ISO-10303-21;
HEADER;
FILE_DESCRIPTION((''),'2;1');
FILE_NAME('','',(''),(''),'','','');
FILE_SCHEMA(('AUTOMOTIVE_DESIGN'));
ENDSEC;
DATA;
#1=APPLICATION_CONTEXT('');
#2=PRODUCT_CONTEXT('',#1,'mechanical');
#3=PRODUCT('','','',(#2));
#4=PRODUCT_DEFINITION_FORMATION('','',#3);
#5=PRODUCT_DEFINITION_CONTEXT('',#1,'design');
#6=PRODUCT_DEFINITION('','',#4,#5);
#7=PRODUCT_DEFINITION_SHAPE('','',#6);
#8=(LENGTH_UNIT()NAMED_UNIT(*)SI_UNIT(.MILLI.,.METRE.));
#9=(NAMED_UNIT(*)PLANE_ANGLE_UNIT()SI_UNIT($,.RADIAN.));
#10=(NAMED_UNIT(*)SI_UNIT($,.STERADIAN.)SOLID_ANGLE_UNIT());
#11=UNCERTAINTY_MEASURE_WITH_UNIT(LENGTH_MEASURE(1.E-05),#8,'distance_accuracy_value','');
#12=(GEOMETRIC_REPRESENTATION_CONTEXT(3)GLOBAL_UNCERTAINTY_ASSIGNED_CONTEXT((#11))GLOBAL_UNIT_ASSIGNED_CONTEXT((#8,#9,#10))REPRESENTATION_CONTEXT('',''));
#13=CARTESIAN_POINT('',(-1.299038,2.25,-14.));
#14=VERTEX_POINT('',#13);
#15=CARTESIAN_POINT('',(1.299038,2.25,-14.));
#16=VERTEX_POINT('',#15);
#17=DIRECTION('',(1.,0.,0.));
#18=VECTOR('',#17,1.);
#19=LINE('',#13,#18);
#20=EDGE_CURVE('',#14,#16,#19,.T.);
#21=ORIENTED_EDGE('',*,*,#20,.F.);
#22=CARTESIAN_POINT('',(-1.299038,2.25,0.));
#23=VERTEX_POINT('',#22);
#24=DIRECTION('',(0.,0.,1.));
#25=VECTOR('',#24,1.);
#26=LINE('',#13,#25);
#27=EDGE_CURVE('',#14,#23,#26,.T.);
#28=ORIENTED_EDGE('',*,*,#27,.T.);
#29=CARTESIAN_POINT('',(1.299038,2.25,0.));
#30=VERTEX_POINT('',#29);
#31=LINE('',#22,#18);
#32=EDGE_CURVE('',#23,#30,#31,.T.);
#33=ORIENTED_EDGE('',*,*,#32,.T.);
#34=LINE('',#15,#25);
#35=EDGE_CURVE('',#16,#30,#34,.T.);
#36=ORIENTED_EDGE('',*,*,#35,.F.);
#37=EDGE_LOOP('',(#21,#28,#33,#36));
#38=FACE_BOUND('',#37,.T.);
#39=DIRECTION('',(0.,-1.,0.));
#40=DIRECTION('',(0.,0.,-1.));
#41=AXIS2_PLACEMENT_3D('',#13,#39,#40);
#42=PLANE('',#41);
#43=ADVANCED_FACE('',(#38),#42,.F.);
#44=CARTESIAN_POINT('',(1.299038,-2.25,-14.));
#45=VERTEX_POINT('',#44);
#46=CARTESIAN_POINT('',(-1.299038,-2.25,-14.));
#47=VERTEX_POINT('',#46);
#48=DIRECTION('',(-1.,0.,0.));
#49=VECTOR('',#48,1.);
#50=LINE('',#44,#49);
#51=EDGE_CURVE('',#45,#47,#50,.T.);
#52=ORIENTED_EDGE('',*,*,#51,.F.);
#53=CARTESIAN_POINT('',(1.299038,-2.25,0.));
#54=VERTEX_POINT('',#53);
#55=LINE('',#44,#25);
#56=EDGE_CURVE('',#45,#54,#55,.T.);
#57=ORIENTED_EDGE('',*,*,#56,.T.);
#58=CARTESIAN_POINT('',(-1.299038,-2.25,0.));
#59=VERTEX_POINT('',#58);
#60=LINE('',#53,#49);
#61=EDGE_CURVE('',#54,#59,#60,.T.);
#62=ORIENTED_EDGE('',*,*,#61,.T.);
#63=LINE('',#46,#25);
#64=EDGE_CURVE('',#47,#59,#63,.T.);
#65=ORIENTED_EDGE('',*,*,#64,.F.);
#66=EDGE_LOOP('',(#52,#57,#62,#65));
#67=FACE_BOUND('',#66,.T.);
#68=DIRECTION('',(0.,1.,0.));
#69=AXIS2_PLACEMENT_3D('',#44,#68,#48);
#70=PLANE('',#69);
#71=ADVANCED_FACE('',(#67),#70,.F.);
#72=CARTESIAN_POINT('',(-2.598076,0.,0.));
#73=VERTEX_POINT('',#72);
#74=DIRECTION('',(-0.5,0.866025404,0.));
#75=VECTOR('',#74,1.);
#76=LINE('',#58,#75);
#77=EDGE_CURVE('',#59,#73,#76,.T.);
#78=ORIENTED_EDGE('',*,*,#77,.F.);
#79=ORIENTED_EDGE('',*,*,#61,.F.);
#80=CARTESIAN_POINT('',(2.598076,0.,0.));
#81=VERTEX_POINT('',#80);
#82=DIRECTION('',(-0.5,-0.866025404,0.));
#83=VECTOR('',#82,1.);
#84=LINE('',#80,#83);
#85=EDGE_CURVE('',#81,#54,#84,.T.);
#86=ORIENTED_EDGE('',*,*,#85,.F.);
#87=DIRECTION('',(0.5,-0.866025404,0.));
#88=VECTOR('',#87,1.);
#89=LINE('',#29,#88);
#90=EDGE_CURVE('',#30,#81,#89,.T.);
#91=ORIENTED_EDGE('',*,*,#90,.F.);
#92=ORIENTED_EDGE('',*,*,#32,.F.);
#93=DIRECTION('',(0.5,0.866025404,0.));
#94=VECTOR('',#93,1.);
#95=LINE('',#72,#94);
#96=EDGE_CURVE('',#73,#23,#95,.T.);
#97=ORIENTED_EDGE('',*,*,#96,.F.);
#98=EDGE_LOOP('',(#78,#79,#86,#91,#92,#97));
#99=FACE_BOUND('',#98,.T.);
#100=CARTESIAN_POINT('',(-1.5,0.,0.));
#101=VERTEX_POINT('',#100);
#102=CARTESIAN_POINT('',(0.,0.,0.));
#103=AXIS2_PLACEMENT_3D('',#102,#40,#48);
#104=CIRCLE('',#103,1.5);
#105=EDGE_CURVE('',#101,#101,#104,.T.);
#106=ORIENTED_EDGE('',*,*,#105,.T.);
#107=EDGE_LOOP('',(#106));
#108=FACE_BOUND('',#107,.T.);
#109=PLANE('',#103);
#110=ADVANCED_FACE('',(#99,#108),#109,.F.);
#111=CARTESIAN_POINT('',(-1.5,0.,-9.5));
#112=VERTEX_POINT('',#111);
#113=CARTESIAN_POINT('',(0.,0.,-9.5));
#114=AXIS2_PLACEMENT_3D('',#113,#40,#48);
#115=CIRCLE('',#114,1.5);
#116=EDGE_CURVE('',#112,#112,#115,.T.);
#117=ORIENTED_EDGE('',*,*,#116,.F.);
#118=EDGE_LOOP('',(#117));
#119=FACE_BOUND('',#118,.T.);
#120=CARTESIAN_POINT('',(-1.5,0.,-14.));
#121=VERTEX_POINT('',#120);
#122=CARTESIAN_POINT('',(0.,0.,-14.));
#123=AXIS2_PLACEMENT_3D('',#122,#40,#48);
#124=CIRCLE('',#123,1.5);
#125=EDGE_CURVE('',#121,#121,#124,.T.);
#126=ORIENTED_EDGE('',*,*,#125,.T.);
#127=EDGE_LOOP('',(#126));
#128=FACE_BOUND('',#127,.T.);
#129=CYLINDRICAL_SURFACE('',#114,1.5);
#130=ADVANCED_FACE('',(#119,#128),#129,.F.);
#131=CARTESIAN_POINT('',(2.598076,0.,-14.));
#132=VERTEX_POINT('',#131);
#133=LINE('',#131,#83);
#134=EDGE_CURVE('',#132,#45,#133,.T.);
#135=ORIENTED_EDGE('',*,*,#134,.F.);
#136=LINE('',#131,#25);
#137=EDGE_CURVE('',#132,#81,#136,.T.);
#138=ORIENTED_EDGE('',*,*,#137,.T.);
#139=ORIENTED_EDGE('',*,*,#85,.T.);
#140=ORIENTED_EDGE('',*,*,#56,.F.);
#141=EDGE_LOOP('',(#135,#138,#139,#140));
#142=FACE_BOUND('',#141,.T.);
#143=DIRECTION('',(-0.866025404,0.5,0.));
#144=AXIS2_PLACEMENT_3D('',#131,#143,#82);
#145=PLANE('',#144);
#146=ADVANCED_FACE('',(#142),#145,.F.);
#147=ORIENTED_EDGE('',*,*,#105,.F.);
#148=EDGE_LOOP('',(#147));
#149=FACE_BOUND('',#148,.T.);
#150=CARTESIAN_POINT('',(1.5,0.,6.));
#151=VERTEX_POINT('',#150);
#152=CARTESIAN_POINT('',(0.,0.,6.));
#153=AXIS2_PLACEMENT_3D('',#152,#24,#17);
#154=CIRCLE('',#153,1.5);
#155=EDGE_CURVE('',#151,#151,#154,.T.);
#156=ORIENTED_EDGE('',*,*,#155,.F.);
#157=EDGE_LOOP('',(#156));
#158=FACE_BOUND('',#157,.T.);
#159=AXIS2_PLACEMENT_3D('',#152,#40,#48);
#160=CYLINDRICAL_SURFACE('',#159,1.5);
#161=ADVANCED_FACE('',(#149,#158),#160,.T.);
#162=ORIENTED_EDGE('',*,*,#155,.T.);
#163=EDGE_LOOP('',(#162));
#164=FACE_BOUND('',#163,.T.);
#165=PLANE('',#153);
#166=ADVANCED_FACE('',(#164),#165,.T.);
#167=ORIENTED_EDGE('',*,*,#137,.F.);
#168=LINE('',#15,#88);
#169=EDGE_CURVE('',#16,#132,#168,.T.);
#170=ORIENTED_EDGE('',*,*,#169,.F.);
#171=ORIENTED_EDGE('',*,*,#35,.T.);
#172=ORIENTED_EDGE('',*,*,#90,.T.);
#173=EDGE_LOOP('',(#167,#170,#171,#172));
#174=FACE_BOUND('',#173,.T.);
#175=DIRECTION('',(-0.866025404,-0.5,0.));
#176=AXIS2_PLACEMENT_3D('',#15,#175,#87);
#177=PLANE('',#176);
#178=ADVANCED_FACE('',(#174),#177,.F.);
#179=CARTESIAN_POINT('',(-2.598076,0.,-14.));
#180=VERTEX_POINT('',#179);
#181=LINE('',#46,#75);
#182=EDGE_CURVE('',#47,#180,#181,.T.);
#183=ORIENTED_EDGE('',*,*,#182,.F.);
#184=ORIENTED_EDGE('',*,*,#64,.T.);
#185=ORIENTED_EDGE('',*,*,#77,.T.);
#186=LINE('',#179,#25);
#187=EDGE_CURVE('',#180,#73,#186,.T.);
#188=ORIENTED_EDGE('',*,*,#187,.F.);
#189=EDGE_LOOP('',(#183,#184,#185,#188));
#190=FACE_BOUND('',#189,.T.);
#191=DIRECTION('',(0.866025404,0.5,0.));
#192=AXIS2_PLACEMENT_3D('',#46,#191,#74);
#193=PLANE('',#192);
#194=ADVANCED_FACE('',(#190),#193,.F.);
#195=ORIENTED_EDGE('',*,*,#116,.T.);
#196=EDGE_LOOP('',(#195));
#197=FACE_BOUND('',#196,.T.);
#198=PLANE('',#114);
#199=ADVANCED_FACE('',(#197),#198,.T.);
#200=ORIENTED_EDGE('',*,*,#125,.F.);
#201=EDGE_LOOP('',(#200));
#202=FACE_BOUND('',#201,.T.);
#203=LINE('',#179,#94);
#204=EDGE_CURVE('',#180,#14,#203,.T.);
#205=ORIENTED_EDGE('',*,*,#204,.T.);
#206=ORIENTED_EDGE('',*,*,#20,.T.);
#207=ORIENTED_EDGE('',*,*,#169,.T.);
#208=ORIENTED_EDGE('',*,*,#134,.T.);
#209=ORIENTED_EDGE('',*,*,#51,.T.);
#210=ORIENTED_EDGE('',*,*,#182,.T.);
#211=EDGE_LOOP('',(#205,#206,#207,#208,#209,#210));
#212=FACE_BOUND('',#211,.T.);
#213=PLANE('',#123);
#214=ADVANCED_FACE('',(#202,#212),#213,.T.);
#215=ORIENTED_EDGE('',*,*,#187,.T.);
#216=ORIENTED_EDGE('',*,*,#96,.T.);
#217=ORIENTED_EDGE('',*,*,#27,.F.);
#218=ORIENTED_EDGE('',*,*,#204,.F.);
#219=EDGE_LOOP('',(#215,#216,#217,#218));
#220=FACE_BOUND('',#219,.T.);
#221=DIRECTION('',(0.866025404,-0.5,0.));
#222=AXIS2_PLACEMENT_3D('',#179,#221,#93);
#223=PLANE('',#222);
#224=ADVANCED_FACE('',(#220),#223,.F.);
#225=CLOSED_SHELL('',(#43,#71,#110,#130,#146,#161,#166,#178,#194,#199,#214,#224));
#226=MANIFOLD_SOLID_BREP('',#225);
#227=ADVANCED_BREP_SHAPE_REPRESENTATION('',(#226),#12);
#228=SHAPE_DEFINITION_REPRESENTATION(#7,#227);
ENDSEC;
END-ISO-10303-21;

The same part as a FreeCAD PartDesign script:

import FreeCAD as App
import Part
import Sketcher
Q = App.Units.Quantity


def add_polygon(sketch, points):
    """Adds a closed chain of lines whose ends are joined by coincident constraints."""
    first, n = sketch.GeometryCount, len(points)
    for a, b in zip(points, points[1:] + points[:1]):
        sketch.addGeometry(Part.LineSegment(App.Vector(*a, 0), App.Vector(*b, 0)), False)
    for i in range(n):
        sketch.addConstraint(Sketcher.Constraint("Coincident", first + i, 2, first + (i + 1) % n, 1))

doc = App.newDocument("Part")
params = doc.addObject("Spreadsheet::Sheet", "Params")
for row, (alias, value) in enumerate([
    ("sketch1_diameter", "3 mm"),
    ("pad1_length", "6 mm"),
    ("pad2_length", "14 mm"),
    ("sketch3_diameter", "3 mm"),
    ("pocket1_length", "4.5 mm"),
], start=1):
    params.set(f"A{row}", alias)
    params.set(f"B{row}", "=" + value)
    params.setAlias(f"B{row}", alias)

body = doc.addObject("PartDesign::Body", "Body")

# Sketch on XY plane
sketch1 = body.newObject("Sketcher::SketchObject", "Sketch")
sketch1.AttachmentSupport = (doc.getObject("XY_Plane"), [""])
sketch1.MapMode = "FlatFace"
sketch1.addGeometry(Part.Circle(App.Vector(0, 0, 0), App.Vector(0, 0, 1), 1.5), False)
sketch1.addConstraint(Sketcher.Constraint("Coincident", 0, 3, -1, 1))
sketch1.addConstraint(Sketcher.Constraint("Diameter", 0, 3.0))
sketch1.setExpression("Constraints[1]", "Params.sketch1_diameter")
pad1 = body.newObject("PartDesign::Pad", "Pad")
pad1.Profile = sketch1
pad1.setExpression("Length", "Params.pad1_length")

# Sketch on XY plane
sketch2 = body.newObject("Sketcher::SketchObject", "Sketch001")
sketch2.AttachmentSupport = (doc.getObject("XY_Plane"), [""])
sketch2.MapMode = "FlatFace"
add_polygon(sketch2, [(-1.3, 2.2), (1.3, 2.2), (2.6, 0), (1.3, -2.2), (-1.3, -2.2), (-2.6, 0)])  # lines 0-5
sketch2.addConstraint(Sketcher.Constraint("Horizontal", 0))
sketch2.addConstraint(Sketcher.Constraint("Horizontal", 3))
sketch2.addConstraint(Sketcher.Constraint("Symmetric", 0, 2, 3, 2, -1, 1))
sketch2.addConstraint(Sketcher.Constraint("Symmetric", 1, 2, 4, 2, -1, 1))
sketch2.addConstraint(Sketcher.Constraint("PointOnObject", 1, 2, -1))
sketch2.addConstraint(Sketcher.Constraint("Parallel", 2, 5))
sketch2.addConstraint(Sketcher.Constraint("Vertical", 0, 2, 2, 2))
sketch2.addConstraint(Sketcher.Constraint("Angle", 1, Q("-60 deg")))
sketch2.addConstraint(Sketcher.Constraint("DistanceY", 2, 2, 0, 2, 4.5))
sketch2.addConstraint(Sketcher.Constraint("DistanceX", 0, 1, 0, 2, 2.598076))
pad2 = body.newObject("PartDesign::Pad", "Pad001")
pad2.Profile = sketch2
pad2.setExpression("Length", "Params.pad2_length")
pad2.Reversed = True

# Sketch on XY plane
sketch3 = body.newObject("Sketcher::SketchObject", "Sketch002")
sketch3.AttachmentSupport = (doc.getObject("XY_Plane"), [""])
sketch3.MapMode = "FlatFace"
sketch3.AttachmentOffset = App.Placement(App.Vector(0, 0, -14), App.Rotation())
sketch3.addGeometry(Part.Circle(App.Vector(0, 0, 0), App.Vector(0, 0, 1), 1.5), False)
sketch3.addConstraint(Sketcher.Constraint("Coincident", 0, 3, -1, 1))
sketch3.addConstraint(Sketcher.Constraint("Diameter", 0, 3.0))
sketch3.setExpression("Constraints[1]", "Params.sketch3_diameter")
pocket1 = body.newObject("PartDesign::Pocket", "Pocket")
pocket1.Profile = sketch3
pocket1.setExpression("Length", "Params.pocket1_length")
pocket1.Reversed = True

doc.recompute()
